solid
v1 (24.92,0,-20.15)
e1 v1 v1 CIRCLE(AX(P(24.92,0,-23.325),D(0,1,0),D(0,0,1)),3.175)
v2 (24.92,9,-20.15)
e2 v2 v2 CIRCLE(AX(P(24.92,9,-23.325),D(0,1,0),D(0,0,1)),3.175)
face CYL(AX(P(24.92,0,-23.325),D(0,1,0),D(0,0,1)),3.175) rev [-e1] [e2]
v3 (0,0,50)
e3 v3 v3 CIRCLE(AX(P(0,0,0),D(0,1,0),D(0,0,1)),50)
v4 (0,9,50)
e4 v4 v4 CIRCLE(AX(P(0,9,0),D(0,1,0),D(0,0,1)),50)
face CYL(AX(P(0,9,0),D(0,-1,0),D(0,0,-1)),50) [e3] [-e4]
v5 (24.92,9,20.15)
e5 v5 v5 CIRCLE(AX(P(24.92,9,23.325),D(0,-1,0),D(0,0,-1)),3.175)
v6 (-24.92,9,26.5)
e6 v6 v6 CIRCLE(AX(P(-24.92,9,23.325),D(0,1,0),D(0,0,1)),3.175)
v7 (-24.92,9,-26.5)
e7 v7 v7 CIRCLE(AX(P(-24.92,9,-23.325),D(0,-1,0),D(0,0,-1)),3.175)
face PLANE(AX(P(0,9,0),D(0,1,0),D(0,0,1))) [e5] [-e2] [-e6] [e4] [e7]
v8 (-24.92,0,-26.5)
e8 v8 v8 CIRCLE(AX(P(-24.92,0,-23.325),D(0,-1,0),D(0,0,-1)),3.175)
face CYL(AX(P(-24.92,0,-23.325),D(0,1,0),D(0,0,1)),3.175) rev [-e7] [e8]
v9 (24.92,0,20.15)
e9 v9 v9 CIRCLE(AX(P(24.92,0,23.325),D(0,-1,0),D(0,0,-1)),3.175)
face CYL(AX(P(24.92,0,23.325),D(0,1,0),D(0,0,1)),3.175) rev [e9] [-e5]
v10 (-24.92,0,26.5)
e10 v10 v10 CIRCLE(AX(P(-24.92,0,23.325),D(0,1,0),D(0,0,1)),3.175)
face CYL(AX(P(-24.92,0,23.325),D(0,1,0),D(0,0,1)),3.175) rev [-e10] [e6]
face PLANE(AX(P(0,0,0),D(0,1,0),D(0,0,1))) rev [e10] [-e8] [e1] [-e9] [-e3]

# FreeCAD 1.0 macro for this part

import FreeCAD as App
import Part
import Sketcher

doc = App.newDocument("Part")
body = doc.addObject("PartDesign::Body", "Body")

sketch1 = body.newObject("Sketcher::SketchObject", "Sketch")
sketch1.AttachmentSupport = (doc.getObject("XZ_Plane"), [""])
sketch1.MapMode = "FlatFace"
sketch1.addGeometry(Part.Circle(App.Vector(0, 0, 0), App.Vector(0, 0, 1), 50), False)
sketch1.addConstraint(Sketcher.Constraint("Coincident", 0, 3, -1, 1))
sketch1.addConstraint(Sketcher.Constraint("Diameter", 0, 100.0))
pad1 = body.newObject("PartDesign::Pad", "Pad")
pad1.Profile = sketch1
pad1.Length = 9
pad1.Reversed = True

sketch2 = body.newObject("Sketcher::SketchObject", "Sketch001")
sketch2.AttachmentSupport = (doc.getObject("XZ_Plane"), [""])
sketch2.MapMode = "FlatFace"
sketch2.AttachmentOffset = App.Placement(App.Vector(0, 0, -9), App.Rotation())
sketch2.addGeometry(Part.Circle(App.Vector(-24.9, 23.3, 0), App.Vector(0, 0, 1), 3.2), False)
sketch2.addGeometry(Part.Circle(App.Vector(24.9, 23.3, 0), App.Vector(0, 0, 1), 3.2), False)
sketch2.addGeometry(Part.Circle(App.Vector(24.9, -23.3, 0), App.Vector(0, 0, 1), 3.2), False)
sketch2.addGeometry(Part.Circle(App.Vector(-24.9, -23.3, 0), App.Vector(0, 0, 1), 3.2), False)
sketch2.addConstraint(Sketcher.Constraint("Equal", 0, 1))
sketch2.addConstraint(Sketcher.Constraint("Equal", 1, 2))
sketch2.addConstraint(Sketcher.Constraint("Equal", 2, 3))
sketch2.addConstraint(Sketcher.Constraint("Symmetric", 0, 3, 2, 3, -1, 1))
sketch2.addConstraint(Sketcher.Constraint("Symmetric", 1, 3, 3, 3, -1, 1))
sketch2.addConstraint(Sketcher.Constraint("Symmetric", 0, 3, 1, 3, -2))
sketch2.addConstraint(Sketcher.Constraint("Diameter", 0, 6.35))
sketch2.addConstraint(Sketcher.Constraint("DistanceX", 0, 3, -1, 1, 24.92))
sketch2.addConstraint(Sketcher.Constraint("DistanceY", 2, 3, 1, 3, 46.65))
pocket1 = body.newObject("PartDesign::Pocket", "Pocket")
pocket1.Profile = sketch2
pocket1.Type = "ThroughAll"
pocket1.Reversed = True

doc.recompute()
